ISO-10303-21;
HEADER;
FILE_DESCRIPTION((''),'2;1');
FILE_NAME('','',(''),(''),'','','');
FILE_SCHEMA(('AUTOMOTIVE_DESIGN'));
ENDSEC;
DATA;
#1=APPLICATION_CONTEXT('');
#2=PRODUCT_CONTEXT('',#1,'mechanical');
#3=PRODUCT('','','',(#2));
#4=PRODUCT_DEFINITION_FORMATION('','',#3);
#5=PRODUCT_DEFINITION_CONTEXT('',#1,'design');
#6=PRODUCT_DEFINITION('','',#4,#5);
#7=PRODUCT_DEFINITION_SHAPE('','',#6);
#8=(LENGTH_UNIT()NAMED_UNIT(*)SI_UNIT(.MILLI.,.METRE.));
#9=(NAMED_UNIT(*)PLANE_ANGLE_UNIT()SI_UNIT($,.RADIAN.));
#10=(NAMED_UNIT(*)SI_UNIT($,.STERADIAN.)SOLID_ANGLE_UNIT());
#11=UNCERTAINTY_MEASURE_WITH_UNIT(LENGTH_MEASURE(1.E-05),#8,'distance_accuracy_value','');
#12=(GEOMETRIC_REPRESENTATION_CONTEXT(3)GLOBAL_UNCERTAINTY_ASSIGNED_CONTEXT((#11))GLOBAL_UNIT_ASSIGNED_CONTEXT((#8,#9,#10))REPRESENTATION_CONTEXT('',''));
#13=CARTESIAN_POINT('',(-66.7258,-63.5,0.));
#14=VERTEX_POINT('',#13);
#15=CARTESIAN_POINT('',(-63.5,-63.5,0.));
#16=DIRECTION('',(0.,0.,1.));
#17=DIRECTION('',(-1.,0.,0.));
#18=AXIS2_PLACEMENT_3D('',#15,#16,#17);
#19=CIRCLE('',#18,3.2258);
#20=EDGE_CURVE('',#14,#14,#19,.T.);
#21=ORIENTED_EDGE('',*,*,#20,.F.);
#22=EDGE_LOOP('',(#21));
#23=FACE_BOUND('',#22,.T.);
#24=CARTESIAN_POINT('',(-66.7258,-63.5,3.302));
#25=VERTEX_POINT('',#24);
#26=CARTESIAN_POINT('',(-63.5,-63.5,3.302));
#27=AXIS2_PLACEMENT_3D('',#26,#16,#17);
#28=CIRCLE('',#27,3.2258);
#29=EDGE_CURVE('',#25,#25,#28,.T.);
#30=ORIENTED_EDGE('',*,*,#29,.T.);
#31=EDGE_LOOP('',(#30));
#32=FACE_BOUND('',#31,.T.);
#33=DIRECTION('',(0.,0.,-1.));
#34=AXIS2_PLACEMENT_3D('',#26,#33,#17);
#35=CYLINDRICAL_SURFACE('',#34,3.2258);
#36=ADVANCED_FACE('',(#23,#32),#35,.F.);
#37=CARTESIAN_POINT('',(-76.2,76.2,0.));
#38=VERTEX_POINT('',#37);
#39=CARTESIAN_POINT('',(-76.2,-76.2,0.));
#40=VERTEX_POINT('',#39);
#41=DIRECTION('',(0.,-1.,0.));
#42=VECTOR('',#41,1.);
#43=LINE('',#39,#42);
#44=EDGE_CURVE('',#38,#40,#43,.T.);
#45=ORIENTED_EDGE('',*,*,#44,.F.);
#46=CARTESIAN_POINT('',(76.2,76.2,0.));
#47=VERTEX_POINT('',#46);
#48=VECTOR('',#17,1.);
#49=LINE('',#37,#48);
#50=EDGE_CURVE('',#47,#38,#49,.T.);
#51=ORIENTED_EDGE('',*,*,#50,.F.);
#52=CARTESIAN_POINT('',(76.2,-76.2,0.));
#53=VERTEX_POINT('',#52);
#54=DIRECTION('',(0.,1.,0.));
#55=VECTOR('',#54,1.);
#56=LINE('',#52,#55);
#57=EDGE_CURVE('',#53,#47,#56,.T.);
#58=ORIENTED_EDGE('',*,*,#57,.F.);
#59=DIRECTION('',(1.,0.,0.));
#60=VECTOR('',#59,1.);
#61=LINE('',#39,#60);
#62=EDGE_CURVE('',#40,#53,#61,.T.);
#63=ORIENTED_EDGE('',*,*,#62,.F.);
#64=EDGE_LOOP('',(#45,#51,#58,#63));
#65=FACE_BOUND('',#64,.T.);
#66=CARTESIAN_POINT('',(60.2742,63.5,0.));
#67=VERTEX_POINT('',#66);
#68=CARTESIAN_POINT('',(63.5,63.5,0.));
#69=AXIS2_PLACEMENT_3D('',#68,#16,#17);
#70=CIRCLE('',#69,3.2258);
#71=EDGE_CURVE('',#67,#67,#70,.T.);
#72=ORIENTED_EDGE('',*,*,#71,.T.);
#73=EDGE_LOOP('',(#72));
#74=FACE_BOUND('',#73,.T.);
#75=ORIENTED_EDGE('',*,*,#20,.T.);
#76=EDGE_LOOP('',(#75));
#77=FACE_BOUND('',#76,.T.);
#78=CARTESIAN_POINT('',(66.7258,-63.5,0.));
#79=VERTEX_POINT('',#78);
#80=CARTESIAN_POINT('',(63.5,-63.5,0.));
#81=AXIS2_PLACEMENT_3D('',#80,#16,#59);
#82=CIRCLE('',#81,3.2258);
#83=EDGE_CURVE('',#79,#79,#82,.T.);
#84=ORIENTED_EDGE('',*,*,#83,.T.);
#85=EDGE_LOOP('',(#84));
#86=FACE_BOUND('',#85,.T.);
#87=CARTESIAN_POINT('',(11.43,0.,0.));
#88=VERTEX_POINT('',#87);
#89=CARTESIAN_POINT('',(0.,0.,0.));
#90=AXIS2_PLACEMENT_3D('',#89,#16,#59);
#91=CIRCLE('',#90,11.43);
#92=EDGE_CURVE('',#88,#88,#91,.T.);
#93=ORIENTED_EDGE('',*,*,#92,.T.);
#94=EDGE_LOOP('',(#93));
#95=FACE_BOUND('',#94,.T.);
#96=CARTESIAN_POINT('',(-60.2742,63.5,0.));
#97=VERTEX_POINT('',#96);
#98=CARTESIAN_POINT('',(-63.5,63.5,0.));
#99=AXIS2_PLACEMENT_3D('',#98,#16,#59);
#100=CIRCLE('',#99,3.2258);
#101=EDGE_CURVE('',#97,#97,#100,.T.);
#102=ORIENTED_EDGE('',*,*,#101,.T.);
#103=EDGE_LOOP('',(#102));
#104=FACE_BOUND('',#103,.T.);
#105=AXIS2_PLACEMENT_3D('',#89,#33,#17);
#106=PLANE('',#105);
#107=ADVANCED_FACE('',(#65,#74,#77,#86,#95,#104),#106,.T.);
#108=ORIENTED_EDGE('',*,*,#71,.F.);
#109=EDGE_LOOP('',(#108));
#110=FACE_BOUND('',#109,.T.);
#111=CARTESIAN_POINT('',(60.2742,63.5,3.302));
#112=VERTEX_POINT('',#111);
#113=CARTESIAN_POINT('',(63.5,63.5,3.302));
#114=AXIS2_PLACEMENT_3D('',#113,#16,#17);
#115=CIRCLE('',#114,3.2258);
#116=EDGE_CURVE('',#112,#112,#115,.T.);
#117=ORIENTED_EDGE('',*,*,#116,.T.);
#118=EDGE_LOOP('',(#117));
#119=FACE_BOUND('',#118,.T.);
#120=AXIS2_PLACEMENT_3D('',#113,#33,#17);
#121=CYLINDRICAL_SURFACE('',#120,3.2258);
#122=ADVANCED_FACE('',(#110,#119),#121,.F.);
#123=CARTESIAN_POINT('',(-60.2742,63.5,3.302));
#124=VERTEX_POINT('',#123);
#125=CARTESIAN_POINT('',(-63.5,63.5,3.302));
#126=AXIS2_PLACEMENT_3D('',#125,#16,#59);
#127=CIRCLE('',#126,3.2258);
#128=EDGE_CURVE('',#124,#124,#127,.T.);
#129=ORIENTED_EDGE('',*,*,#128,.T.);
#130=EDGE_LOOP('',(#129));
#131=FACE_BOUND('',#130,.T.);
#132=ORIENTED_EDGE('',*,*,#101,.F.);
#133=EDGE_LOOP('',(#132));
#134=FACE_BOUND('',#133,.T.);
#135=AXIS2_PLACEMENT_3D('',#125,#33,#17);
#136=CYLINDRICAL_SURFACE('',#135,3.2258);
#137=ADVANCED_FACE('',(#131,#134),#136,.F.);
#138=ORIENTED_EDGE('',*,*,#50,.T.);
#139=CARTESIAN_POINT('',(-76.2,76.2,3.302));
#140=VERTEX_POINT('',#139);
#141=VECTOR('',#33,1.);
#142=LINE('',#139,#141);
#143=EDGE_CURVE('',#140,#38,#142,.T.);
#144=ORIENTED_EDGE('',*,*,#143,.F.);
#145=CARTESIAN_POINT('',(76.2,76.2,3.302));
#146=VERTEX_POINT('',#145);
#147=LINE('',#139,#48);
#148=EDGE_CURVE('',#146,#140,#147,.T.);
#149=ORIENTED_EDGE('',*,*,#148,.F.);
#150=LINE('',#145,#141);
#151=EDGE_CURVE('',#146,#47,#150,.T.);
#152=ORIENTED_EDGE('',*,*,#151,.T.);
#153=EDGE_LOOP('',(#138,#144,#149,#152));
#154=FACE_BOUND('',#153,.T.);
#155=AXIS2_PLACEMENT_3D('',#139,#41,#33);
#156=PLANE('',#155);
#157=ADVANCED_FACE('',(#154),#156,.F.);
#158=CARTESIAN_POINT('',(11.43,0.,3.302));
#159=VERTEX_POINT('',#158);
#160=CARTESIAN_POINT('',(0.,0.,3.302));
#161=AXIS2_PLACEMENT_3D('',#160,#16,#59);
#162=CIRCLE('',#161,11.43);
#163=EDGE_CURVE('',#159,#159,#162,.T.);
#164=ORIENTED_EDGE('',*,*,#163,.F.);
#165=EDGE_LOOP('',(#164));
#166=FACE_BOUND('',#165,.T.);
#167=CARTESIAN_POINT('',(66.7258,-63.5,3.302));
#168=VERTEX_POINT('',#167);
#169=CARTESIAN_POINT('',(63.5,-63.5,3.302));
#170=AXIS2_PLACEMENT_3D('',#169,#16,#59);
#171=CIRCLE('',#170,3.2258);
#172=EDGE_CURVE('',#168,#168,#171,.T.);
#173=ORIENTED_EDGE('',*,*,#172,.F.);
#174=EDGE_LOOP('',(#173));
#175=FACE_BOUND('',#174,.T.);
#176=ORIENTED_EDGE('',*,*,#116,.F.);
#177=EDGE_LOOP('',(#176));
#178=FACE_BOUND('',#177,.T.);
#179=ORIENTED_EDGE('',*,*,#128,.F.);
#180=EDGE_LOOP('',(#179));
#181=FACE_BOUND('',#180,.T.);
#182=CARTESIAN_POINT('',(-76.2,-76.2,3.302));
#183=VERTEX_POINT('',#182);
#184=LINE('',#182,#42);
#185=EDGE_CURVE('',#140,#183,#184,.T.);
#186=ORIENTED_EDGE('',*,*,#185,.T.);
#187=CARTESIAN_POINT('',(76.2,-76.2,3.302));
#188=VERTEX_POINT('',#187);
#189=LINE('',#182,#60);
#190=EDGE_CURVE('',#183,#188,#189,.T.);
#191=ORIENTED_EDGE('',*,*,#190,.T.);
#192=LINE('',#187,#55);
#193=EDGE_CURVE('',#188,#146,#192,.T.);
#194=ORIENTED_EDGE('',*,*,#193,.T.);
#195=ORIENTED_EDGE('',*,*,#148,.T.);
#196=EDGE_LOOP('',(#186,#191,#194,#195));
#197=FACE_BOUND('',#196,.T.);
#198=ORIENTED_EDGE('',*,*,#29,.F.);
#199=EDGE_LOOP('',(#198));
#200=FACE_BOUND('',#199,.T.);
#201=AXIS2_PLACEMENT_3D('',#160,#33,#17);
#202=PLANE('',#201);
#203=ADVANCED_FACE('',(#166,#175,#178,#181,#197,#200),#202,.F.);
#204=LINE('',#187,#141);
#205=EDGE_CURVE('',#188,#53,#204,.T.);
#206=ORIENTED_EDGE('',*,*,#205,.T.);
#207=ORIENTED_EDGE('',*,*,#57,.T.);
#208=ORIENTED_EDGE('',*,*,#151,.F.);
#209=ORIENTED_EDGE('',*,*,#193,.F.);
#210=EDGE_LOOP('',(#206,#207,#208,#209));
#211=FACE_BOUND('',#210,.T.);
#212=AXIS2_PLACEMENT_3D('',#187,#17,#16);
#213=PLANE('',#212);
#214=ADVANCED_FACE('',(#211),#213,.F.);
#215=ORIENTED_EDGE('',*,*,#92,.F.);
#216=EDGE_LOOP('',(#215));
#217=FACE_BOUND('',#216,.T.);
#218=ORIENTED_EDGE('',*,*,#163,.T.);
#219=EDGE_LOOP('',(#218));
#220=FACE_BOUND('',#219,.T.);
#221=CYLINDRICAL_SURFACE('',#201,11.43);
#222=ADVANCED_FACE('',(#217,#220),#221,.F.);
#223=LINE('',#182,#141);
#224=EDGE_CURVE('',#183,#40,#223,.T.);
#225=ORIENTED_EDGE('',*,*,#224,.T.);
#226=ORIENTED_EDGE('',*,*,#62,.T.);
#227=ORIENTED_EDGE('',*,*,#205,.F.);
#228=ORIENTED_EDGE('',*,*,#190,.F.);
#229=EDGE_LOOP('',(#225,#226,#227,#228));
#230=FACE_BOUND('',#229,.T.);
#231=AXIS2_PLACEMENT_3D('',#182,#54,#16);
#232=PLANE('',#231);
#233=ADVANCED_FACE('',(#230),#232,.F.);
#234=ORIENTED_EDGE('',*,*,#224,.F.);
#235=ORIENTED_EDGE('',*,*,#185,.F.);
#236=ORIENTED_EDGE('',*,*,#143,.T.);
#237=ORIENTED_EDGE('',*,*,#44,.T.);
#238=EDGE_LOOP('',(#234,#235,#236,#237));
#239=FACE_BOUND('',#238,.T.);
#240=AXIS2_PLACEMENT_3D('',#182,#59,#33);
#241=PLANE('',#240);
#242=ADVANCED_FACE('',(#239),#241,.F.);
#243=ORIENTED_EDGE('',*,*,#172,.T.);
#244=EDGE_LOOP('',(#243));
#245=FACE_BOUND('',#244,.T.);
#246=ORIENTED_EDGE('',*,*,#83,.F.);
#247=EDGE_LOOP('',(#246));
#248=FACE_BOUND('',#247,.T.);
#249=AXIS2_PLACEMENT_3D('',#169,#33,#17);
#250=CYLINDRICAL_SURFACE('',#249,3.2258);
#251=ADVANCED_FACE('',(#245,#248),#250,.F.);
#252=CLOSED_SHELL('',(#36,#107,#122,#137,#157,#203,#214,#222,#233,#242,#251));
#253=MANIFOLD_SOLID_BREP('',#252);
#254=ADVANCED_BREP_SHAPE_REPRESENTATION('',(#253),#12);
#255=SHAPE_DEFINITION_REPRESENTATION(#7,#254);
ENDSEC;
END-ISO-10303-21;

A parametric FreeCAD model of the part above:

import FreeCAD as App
import Part
import Sketcher
from FreeCAD import Vector
Q = App.Units.Quantity


def add_polygon(sketch, points):
    """Adds a closed chain of lines whose ends are joined by coincident constraints."""
    first, n = sketch.GeometryCount, len(points)
    for a, b in zip(points, points[1:] + points[:1]):
        sketch.addGeometry(Part.LineSegment(App.Vector(*a, 0), App.Vector(*b, 0)), False)
    for i in range(n):
        sketch.addConstraint(Sketcher.Constraint("Coincident", first + i, 2, first + (i + 1) % n, 1))

doc = App.newDocument("Part")
body = doc.addObject("PartDesign::Body", "Body")

# Sketch on XY plane
sketch1 = body.newObject("Sketcher::SketchObject", "Sketch")
sketch1.AttachmentSupport = (doc.getObject("XY_Plane"), [""])
sketch1.MapMode = "FlatFace"
add_polygon(sketch1, [(-76.2, 76.2), (-76.2, -76.2), (76.2, -76.2), (76.2, 76.2)])  # lines 0-3
sketch1.addGeometry(Part.Circle(Vector(-63.5, -63.5, 0), Vector(0, 0, 1), 3.2), False)  # 4
sketch1.addGeometry(Part.Circle(Vector(63.5, -63.5, 0), Vector(0, 0, 1), 3.2), False)  # 5
sketch1.addGeometry(Part.Circle(Vector(-63.5, 63.5, 0), Vector(0, 0, 1), 3.2), False)  # 6
sketch1.addGeometry(Part.Circle(Vector(0, 0, 0), Vector(0, 0, 1), 11.4), False)  # 7
sketch1.addGeometry(Part.Circle(Vector(63.5, 63.5, 0), Vector(0, 0, 1), 3.2), False)  # 8
sketch1.addConstraint([
    Sketcher.Constraint("Vertical", 0),
    Sketcher.Constraint("Horizontal", 1),
    Sketcher.Constraint("Vertical", 2),
    Sketcher.Constraint("Horizontal", 3),
    Sketcher.Constraint("Coincident", 7, 3, -1, 1),
    Sketcher.Constraint("Equal", 4, 5),
    Sketcher.Constraint("Equal", 5, 6),
    Sketcher.Constraint("Equal", 6, 8),
    Sketcher.Constraint("Symmetric", 5, 3, 6, 3, -1, 1),
    Sketcher.Constraint("Symmetric", 4, 3, 8, 3, -1, 1),
    Sketcher.Constraint("Symmetric", 0, 2, 2, 2, -1, 1),
    Sketcher.Constraint("Symmetric", 4, 3, 5, 3, -2),
    Sketcher.Constraint("Equal", 3, 0),
    Sketcher.Constraint("Diameter", 7, Q("0.9 in")),
    Sketcher.Constraint("DistanceX", 1, 1, 1, 2, Q("6 in")),
    Sketcher.Constraint("Diameter", 4, Q("0.254 in")),
    Sketcher.Constraint("DistanceX", 4, 3, 5, 3, Q("5 in")),
    Sketcher.Constraint("DistanceY", 4, 3, 6, 3, Q("5 in")),
])
pad1 = body.newObject("PartDesign::Pad", "Pad")
pad1.Profile = sketch1
pad1.Length = Q("0.13 in")

doc.recompute()
